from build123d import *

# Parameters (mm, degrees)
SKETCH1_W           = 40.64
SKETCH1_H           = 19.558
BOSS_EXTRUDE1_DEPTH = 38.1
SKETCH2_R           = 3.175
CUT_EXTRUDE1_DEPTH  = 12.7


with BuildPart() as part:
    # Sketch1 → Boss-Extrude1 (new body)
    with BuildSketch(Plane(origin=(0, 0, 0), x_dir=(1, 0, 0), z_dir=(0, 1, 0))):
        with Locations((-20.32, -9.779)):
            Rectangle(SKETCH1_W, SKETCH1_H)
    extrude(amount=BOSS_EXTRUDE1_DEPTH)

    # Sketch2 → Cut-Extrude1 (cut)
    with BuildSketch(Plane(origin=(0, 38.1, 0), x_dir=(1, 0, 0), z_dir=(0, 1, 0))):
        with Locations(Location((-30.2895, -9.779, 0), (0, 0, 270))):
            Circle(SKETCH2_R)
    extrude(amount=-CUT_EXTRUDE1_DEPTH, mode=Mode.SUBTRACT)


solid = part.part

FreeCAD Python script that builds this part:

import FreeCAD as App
import Part
import Sketcher
from FreeCAD import Vector
Q = App.Units.Quantity

doc = App.newDocument("Part")
body = doc.addObject("PartDesign::Body", "Body")

# Sketch on XZ plane
sketch1 = body.newObject("Sketcher::SketchObject", "Sketch")
sketch1.AttachmentSupport = (doc.getObject("XZ_Plane"), [""])
sketch1.MapMode = "FlatFace"
sketch1.addGeometry(Part.LineSegment(Vector(-41, 0, 0), Vector(-41, 20, 0)), False)
sketch1.addGeometry(Part.LineSegment(Vector(-41, 20, 0), Vector(0, 20, 0)), False)
sketch1.addGeometry(Part.LineSegment(Vector(0, 20, 0), Vector(0, 0, 0)), False)
sketch1.addGeometry(Part.LineSegment(Vector(0, 0, 0), Vector(-41, 0, 0)), False)
sketch1.addConstraint(Sketcher.Constraint("Coincident", 0, 2, 1, 1))
sketch1.addConstraint(Sketcher.Constraint("Coincident", 1, 2, 2, 1))
sketch1.addConstraint(Sketcher.Constraint("Coincident", 2, 2, 3, 1))
sketch1.addConstraint(Sketcher.Constraint("Coincident", 3, 2, 0, 1))
sketch1.addConstraint(Sketcher.Constraint("Vertical", 0))
sketch1.addConstraint(Sketcher.Constraint("Horizontal", 1))
sketch1.addConstraint(Sketcher.Constraint("Vertical", 2))
sketch1.addConstraint(Sketcher.Constraint("Horizontal", 3))
sketch1.addConstraint(Sketcher.Constraint("Coincident", 2, 2, -1, 1))
sketch1.addConstraint(Sketcher.Constraint("DistanceX", 1, 1, 1, 2, Q("1.6 in")))
sketch1.addConstraint(Sketcher.Constraint("DistanceY", 0, 1, 0, 2, Q("0.77 in")))
pad1 = body.newObject("PartDesign::Pad", "Pad")
pad1.Profile = sketch1
pad1.Length = Q("1.5 in")
pad1.Reversed = True

# Sketch on XZ plane
sketch2 = body.newObject("Sketcher::SketchObject", "Sketch001")
sketch2.AttachmentSupport = (doc.getObject("XZ_Plane"), [""])
sketch2.MapMode = "FlatFace"
sketch2.AttachmentOffset = App.Placement(Vector(0, 0, -1.5 * 25.4), App.Rotation())
sketch2.addGeometry(Part.Circle(Vector(-30.3, 9.8, 0), Vector(0, 0, 1), 3.2), False)
sketch2.addConstraint(Sketcher.Constraint("Diameter", 0, Q("0.25 in")))
sketch2.addConstraint(Sketcher.Constraint("DistanceY", -1, 1, 0, 3, Q("0.385 in")))
sketch2.addConstraint(Sketcher.Constraint("DistanceX", 0, 3, -1, 1, Q("1.1925 in")))
pocket1 = body.newObject("PartDesign::Pocket", "Pocket")
pocket1.Profile = sketch2
pocket1.Length = Q("0.5 in")
pocket1.Reversed = True

doc.recompute()
